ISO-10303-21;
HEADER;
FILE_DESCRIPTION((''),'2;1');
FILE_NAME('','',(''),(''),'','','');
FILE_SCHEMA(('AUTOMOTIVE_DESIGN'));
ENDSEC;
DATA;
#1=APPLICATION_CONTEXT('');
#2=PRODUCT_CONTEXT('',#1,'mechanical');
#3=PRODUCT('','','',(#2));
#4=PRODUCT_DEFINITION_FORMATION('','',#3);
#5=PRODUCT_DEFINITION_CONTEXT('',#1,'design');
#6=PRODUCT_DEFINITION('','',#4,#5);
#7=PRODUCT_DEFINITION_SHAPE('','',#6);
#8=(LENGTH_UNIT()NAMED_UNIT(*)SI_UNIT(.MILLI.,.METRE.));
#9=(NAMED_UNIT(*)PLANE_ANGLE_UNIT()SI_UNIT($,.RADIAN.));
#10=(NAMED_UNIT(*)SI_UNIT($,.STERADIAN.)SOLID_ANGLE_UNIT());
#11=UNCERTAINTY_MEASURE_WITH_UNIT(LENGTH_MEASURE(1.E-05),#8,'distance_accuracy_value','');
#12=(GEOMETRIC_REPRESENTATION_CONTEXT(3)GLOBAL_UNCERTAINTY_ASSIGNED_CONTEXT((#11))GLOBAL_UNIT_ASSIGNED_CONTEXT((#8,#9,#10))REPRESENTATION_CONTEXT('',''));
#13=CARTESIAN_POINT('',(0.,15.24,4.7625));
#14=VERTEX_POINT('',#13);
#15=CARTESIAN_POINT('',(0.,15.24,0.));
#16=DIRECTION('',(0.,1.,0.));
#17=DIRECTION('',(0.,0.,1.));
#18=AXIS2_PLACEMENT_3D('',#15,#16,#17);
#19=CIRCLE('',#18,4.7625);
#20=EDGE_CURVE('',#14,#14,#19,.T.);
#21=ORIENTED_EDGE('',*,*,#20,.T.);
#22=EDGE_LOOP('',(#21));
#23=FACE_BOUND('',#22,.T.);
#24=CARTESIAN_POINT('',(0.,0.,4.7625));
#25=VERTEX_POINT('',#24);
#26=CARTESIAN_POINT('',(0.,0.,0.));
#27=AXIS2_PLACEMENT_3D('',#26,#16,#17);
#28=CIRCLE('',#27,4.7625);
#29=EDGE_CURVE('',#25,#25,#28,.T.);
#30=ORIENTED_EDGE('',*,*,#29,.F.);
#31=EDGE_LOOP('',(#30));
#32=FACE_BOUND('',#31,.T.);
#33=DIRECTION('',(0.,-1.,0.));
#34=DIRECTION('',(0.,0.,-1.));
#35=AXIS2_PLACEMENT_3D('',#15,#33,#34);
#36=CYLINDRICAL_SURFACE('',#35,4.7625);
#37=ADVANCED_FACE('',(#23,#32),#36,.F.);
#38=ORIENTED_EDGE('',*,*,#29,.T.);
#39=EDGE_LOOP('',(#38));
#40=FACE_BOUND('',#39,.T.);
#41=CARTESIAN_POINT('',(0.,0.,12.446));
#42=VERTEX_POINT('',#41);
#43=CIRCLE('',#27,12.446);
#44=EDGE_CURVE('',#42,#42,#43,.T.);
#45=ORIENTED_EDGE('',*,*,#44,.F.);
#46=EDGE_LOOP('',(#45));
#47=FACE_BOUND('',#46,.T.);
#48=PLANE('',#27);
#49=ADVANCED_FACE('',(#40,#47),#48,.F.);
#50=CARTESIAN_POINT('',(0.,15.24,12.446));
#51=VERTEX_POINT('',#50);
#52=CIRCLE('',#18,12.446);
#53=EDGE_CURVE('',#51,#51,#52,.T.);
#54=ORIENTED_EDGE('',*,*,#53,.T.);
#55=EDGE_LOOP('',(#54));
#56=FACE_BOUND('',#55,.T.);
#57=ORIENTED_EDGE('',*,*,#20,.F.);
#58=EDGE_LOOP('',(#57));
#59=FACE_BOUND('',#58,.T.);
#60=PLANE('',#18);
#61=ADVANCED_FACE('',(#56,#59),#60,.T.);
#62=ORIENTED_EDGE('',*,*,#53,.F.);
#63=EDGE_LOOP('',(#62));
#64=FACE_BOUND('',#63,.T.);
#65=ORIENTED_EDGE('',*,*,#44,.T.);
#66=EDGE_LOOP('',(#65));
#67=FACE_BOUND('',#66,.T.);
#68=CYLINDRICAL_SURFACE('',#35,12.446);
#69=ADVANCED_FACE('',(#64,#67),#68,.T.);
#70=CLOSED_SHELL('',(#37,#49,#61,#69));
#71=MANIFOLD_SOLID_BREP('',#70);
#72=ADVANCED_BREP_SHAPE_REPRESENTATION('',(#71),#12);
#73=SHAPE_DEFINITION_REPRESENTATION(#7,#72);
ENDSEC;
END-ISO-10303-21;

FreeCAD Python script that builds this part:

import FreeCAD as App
import Part
import Sketcher
Q = App.Units.Quantity

doc = App.newDocument("Part")
body = doc.addObject("PartDesign::Body", "Body")

# Sketch on XZ plane
sketch1 = body.newObject("Sketcher::SketchObject", "Sketch")
sketch1.AttachmentSupport = (doc.getObject("XZ_Plane"), [""])
sketch1.MapMode = "FlatFace"
sketch1.addGeometry([
    Part.Circle(App.Vector(0, 0, 0), App.Vector(0, 0, 1), 12.446),
    Part.Circle(App.Vector(0, 0, 0), App.Vector(0, 0, 1), 4.7625),
], False)
sketch1.addConstraint([
    Sketcher.Constraint("Coincident", 0, 3, -1, 1),
    Sketcher.Constraint("Coincident", 1, 3, -1, 1),
    Sketcher.Constraint("Diameter", 0, Q("0.98 in")),
    Sketcher.Constraint("Diameter", 1, Q("0.375 in")),
])
pad1 = body.newObject("PartDesign::Pad", "Pad")
pad1.Profile = sketch1
pad1.Length = Q("0.6 in")
pad1.Reversed = True

doc.recompute()
